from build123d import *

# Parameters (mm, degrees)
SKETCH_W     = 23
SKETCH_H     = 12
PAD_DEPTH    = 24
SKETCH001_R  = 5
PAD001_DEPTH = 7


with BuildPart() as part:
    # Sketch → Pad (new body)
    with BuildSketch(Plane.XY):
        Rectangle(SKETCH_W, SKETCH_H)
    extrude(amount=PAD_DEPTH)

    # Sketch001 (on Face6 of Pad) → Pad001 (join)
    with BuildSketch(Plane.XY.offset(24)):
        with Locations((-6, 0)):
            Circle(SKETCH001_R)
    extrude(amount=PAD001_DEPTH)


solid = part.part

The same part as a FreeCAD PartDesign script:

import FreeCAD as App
import Part
import Sketcher
Q = App.Units.Quantity


def add_polygon(sketch, points):
    """Adds a closed chain of lines whose ends are joined by coincident constraints."""
    first, n = sketch.GeometryCount, len(points)
    for a, b in zip(points, points[1:] + points[:1]):
        sketch.addGeometry(Part.LineSegment(App.Vector(*a, 0), App.Vector(*b, 0)), False)
    for i in range(n):
        sketch.addConstraint(Sketcher.Constraint("Coincident", first + i, 2, first + (i + 1) % n, 1))

doc = App.newDocument("Part")
body = doc.addObject("PartDesign::Body", "Body")

# Sketch on XY plane
sketch1 = doc.addObject("Sketcher::SketchObject", "Sketch")
body.addObject(sketch1)
sketch1.AttachmentSupport = (doc.XY_Plane, [""])
sketch1.MapMode = "FlatFace"
add_polygon(sketch1, [(-12, 6), (-12, -6), (12, -6), (12, 6)])  # lines 0-3
sketch1.addConstraint(Sketcher.Constraint("Vertical", 0))
sketch1.addConstraint(Sketcher.Constraint("Horizontal", 1))
sketch1.addConstraint(Sketcher.Constraint("Vertical", 2))
sketch1.addConstraint(Sketcher.Constraint("Horizontal", 3))
sketch1.addConstraint(Sketcher.Constraint("Symmetric", 0, 2, 2, 2, -1, 1))
sketch1.addConstraint(Sketcher.Constraint("DistanceX", 1, 1, 1, 2, Q("23 mm")))
sketch1.addConstraint(Sketcher.Constraint("DistanceY", 0, 2, 0, 1, Q("12 mm")))
pad1 = doc.addObject("PartDesign::Pad", "Pad")
body.addObject(pad1)
pad1.Profile = sketch1
pad1.Length = 24

# Sketch on XY plane
sketch2 = doc.addObject("Sketcher::SketchObject", "Sketch001")
body.addObject(sketch2)
sketch2.AttachmentSupport = (doc.XY_Plane, [""])
sketch2.MapMode = "FlatFace"
sketch2.AttachmentOffset = App.Placement(App.Vector(0, 0, 24), App.Rotation())
sketch2.addGeometry(Part.Circle(App.Vector(-6, 0, 0), App.Vector(0, 0, 1), 5), False)
sketch2.addConstraint(Sketcher.Constraint("PointOnObject", 0, 3, -1))
sketch2.addConstraint(Sketcher.Constraint("Diameter", 0, Q("10 mm")))
sketch2.addConstraint(Sketcher.Constraint("DistanceX", 0, 3, -1, 1, Q("6 mm")))
pad2 = doc.addObject("PartDesign::Pad", "Pad001")
body.addObject(pad2)
pad2.Profile = sketch2
pad2.Length = 7

doc.recompute()
